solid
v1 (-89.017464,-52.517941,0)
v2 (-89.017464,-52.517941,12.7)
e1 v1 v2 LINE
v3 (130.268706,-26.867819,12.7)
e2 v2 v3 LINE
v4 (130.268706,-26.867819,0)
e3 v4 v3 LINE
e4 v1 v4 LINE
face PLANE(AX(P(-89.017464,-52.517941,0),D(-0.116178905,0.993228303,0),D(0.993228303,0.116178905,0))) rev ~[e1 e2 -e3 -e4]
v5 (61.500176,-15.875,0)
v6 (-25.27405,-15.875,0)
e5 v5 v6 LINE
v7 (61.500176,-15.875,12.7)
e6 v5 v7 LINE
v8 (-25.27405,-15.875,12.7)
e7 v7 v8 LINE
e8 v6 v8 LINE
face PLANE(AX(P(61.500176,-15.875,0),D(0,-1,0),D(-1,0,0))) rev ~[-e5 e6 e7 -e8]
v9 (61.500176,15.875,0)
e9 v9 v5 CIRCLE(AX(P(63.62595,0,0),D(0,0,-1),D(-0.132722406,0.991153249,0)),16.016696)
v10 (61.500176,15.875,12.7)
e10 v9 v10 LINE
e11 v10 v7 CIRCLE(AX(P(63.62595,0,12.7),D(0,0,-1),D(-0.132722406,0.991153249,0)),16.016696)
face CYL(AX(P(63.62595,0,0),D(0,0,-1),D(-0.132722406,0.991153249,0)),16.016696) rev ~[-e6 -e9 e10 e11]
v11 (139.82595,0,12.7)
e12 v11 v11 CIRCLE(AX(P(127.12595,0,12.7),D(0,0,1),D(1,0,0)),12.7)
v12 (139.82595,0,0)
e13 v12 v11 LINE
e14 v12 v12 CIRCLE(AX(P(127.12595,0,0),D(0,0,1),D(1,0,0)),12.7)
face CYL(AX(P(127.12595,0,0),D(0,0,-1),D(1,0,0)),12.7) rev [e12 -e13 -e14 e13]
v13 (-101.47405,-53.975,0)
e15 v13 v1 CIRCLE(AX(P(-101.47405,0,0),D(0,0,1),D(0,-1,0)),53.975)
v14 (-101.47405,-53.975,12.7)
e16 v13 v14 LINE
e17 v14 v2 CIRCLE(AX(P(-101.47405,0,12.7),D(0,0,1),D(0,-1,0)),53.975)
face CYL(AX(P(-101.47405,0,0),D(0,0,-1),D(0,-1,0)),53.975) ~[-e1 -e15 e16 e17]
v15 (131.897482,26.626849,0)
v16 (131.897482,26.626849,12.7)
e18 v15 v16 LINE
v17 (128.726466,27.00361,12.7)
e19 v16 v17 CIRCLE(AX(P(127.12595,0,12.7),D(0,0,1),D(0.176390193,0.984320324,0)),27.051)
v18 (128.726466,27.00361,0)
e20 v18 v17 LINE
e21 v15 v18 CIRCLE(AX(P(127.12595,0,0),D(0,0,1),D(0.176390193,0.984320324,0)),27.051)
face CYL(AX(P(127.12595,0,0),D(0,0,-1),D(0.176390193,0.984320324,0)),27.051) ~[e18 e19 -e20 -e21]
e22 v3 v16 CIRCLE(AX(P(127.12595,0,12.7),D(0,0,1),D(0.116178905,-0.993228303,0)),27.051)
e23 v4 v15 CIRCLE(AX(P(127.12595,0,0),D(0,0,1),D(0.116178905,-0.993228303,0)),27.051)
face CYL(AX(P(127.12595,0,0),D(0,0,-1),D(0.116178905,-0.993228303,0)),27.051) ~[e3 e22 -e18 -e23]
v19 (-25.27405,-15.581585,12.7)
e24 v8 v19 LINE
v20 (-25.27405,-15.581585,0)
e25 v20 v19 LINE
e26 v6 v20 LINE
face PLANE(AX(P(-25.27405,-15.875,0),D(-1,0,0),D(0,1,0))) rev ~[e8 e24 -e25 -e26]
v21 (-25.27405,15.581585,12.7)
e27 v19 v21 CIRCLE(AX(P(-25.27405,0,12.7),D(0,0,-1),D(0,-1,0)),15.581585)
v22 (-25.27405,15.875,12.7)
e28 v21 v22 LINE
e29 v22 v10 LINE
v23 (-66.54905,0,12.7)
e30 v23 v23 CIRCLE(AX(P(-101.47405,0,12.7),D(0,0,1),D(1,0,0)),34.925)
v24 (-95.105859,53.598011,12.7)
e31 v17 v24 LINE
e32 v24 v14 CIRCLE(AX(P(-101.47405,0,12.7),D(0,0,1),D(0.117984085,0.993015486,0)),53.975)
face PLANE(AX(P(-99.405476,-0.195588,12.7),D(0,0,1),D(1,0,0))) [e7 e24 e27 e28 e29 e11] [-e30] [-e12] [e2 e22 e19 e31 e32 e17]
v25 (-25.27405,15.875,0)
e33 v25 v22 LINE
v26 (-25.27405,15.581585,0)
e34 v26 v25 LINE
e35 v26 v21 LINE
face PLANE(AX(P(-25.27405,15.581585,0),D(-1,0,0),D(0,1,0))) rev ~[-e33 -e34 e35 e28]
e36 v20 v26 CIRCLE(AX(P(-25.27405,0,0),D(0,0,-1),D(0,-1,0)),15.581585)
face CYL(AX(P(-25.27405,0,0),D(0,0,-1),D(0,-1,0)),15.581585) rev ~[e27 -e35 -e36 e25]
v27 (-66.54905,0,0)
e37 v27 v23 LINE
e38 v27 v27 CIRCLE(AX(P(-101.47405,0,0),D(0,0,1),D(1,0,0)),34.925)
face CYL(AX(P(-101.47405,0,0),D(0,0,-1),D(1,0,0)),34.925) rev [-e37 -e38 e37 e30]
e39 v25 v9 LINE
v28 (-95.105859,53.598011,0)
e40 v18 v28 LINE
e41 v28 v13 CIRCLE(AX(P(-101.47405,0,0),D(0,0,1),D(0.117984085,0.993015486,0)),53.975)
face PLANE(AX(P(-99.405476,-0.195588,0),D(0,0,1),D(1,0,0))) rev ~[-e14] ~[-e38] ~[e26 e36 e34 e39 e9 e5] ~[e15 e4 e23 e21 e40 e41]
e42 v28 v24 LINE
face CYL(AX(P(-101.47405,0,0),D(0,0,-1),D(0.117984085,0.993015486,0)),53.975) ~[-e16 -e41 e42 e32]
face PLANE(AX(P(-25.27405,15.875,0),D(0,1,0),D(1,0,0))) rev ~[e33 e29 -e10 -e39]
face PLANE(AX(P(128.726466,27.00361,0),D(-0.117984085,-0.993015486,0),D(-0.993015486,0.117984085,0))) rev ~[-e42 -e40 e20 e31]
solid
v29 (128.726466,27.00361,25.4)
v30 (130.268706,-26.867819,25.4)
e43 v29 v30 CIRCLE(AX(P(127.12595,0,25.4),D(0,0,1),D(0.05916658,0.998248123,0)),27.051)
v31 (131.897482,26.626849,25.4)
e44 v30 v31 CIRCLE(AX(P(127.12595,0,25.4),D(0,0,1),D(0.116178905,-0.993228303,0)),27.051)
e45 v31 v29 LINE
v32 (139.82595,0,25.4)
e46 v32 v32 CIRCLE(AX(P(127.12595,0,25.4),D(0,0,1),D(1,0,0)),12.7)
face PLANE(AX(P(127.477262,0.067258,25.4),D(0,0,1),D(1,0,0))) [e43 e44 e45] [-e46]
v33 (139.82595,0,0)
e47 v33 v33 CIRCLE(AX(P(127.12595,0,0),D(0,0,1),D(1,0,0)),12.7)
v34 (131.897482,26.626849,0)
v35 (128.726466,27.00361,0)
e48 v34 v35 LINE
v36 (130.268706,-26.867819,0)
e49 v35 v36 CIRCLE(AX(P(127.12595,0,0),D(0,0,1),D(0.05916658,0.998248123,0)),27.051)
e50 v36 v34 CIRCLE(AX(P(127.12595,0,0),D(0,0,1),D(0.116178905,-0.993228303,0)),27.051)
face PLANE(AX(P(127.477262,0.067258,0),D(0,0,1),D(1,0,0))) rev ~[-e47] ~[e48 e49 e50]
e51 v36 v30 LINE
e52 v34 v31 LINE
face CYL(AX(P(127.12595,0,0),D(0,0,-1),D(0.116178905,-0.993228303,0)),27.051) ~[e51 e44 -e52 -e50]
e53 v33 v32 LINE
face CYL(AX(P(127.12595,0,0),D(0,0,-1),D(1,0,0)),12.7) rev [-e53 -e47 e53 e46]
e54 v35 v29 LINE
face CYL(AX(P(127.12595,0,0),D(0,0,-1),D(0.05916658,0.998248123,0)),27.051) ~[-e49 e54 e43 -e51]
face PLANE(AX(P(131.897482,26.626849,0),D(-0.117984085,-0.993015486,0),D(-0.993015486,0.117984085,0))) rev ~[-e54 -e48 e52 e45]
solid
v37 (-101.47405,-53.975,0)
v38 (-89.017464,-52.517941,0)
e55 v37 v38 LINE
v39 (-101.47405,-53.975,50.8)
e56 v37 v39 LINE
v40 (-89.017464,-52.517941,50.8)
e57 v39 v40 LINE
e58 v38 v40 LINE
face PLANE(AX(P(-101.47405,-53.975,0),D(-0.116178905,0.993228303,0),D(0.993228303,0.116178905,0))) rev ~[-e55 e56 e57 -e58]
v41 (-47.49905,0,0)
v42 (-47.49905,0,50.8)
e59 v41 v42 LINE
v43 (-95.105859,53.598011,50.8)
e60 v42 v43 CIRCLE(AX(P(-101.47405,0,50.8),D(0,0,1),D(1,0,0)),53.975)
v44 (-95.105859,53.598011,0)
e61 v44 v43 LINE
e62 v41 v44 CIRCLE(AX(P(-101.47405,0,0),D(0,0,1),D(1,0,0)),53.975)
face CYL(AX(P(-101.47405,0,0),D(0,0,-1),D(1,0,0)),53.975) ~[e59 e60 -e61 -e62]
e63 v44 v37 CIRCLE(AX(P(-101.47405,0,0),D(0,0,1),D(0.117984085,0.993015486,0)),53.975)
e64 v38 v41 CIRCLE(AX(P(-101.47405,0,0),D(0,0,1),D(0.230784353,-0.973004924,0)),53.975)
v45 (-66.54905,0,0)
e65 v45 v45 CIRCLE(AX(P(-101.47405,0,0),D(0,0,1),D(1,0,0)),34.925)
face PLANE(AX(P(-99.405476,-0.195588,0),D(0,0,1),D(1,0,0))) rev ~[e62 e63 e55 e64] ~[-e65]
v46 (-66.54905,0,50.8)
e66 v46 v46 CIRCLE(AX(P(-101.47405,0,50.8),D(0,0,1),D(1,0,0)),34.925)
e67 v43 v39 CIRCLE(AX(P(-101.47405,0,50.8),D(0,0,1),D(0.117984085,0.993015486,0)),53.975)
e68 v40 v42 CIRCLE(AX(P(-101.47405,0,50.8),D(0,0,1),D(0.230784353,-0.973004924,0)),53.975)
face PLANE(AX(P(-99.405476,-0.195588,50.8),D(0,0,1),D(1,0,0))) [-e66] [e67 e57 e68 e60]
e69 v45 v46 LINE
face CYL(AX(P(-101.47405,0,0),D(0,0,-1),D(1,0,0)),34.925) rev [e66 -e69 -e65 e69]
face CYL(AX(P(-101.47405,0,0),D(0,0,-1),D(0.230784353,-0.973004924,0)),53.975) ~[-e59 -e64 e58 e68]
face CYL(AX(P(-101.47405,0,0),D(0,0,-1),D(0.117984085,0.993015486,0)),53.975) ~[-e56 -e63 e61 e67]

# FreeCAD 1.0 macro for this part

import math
import FreeCAD as App
import Part
import Sketcher

V = App.Vector
Q = App.Units.Quantity

doc = App.newDocument("Part")
body = doc.addObject("PartDesign::Body", "Body")

sketch1 = body.newObject("Sketcher::SketchObject", "Sketch")
sketch1.AttachmentSupport = (doc.getObject("XY_Plane"), [""])
sketch1.MapMode = "FlatFace"
sketch1.addGeometry([
    Part.LineSegment(V(131.897482, 26.626849, 0), V(128.726466, 27.00361, 0)),
    Part.ArcOfCircle(Part.Circle(V(127.12595, 0, 0), V(0, 0, 1), 27.051), math.radians(86.608024), math.radians(276.671627)),
    Part.ArcOfCircle(Part.Circle(V(127.12595, 0, 0), V(0, 0, 1), 27.051), math.radians(-83.328373), math.radians(79.840431)),
    Part.Circle(V(127.12595, 0, 0), V(0, 0, 1), 12.7),
], False)
sketch1.addConstraint([
    Sketcher.Constraint("Coincident", 0, 2, 1, 1),
    Sketcher.Constraint("Tangent", 1, 2, 2, 1),
    Sketcher.Constraint("Coincident", 2, 2, 0, 1),
    Sketcher.Constraint("Coincident", 3, 3, 1, 3),
    Sketcher.Constraint("Equal", 1, 2),
    Sketcher.Constraint("PointOnObject", 1, 3, -1),
    Sketcher.Constraint("Diameter", 3, Q("1 in")),
    Sketcher.Constraint("Radius", 1, Q("1.065 in")),
    Sketcher.Constraint("Distance", 0, 3.19332),
    Sketcher.Constraint("DistanceX", -1, 1, 1, 3, 127.12595),
    Sketcher.Constraint("DistanceY", -1, 1, 0, 2, 27.00361),
    Sketcher.Constraint("DistanceY", 1, 2, -1, 1, 26.867819),
])
pad1 = body.newObject("PartDesign::Pad", "Pad")
pad1.Profile = sketch1
pad1.Length = Q("1 in")
body2 = doc.addObject("PartDesign::Body", "Body001")

sketch2 = body2.newObject("Sketcher::SketchObject", "Sketch001")
sketch2.AttachmentSupport = (doc.getObject("XY_Plane001"), [""])
sketch2.MapMode = "FlatFace"
sketch2.addGeometry([
    Part.ArcOfCircle(Part.Circle(V(-101.47405, 0, 0), V(0, 0, 1), 53.975), math.radians(-76.656746), math.radians(0)),
    Part.ArcOfCircle(Part.Circle(V(-101.47405, 0, 0), V(0, 0, 1), 53.975), math.radians(0), math.radians(83.224227)),
    Part.ArcOfCircle(Part.Circle(V(-101.47405, 0, 0), V(0, 0, 1), 53.975), math.radians(83.224227), math.radians(270)),
    Part.LineSegment(V(-101.47405, -53.975, 0), V(-89.017464, -52.517941, 0)),
    Part.Circle(V(-101.47405, 0, 0), V(0, 0, 1), 34.925),
], False)
sketch2.addConstraint([
    Sketcher.Constraint("Tangent", 0, 2, 1, 1),
    Sketcher.Constraint("Tangent", 1, 2, 2, 1),
    Sketcher.Constraint("Coincident", 2, 2, 3, 1),
    Sketcher.Constraint("Coincident", 3, 2, 0, 1),
    Sketcher.Constraint("Coincident", 2, 3, 0, 3),
    Sketcher.Constraint("Coincident", 4, 3, 0, 3),
    Sketcher.Constraint("PointOnObject", 0, 3, -1),
    Sketcher.Constraint("PointOnObject", 0, 2, -1),
    Sketcher.Constraint("Vertical", 4, 3, 2, 2),
    Sketcher.Constraint("Diameter", 4, Q("2.75 in")),
    Sketcher.Constraint("Radius", 0, Q("2.125 in")),
    Sketcher.Constraint("DistanceX", 0, 3, -1, 1, 101.47405),
    Sketcher.Constraint("DistanceX", 1, 2, -1, 1, 95.105859),
    Sketcher.Constraint("DistanceY", 3, 2, -1, 1, 52.517941),
])
pad2 = body2.newObject("PartDesign::Pad", "Pad001")
pad2.Profile = sketch2
pad2.Length = Q("2 in")
body3 = doc.addObject("PartDesign::Body", "Body002")

sketch3 = body3.newObject("Sketcher::SketchObject", "Sketch002")
sketch3.AttachmentSupport = (doc.getObject("XY_Plane002"), [""])
sketch3.MapMode = "FlatFace"
sketch3.addGeometry([
    Part.ArcOfCircle(Part.Circle(V(-101.47405, 0, 0), V(0, 0, 1), 53.975), math.radians(83.224227), math.radians(270)),
    Part.ArcOfCircle(Part.Circle(V(-101.47405, 0, 0), V(0, 0, 1), 53.975), math.radians(-90), math.radians(-76.656746)),
    Part.LineSegment(V(-89.017464, -52.517941, 0), V(130.268706, -26.867819, 0)),
    Part.ArcOfCircle(Part.Circle(V(127.12595, 0, 0), V(0, 0, 1), 27.051), math.radians(-83.328373), math.radians(79.840431)),
    Part.ArcOfCircle(Part.Circle(V(127.12595, 0, 0), V(0, 0, 1), 27.051), math.radians(79.840431), math.radians(86.608024)),
    Part.LineSegment(V(128.726466, 27.00361, 0), V(-95.105859, 53.598011, 0)),
    Part.Circle(V(-101.47405, 0, 0), V(0, 0, 1), 34.925),
    Part.LineSegment(V(-25.27405, 15.875, 0), V(61.500176, 15.875, 0)),
    Part.ArcOfCircle(Part.Circle(V(63.62595, 0, 0), V(0, 0, 1), 16.016696), math.radians(-97.626938), math.radians(97.626938)),
    Part.LineSegment(V(61.500176, -15.875, 0), V(-25.27405, -15.875, 0)),
    Part.LineSegment(V(-25.27405, -15.875, 0), V(-25.27405, -15.581585, 0)),
    Part.ArcOfCircle(Part.Circle(V(-25.27405, 0, 0), V(0, 0, 1), 15.581585), math.radians(90), math.radians(270)),
    Part.LineSegment(V(-25.27405, 15.581585, 0), V(-25.27405, 15.875, 0)),
    Part.Circle(V(127.12595, 0, 0), V(0, 0, 1), 12.7),
], False)
sketch3.addConstraint([
    Sketcher.Constraint("Tangent", 0, 2, 1, 1),
    Sketcher.Constraint("Coincident", 1, 2, 2, 1),
    Sketcher.Constraint("Tangent", 2, 2, 3, 1),
    Sketcher.Constraint("Tangent", 3, 2, 4, 1),
    Sketcher.Constraint("Coincident", 4, 2, 5, 1),
    Sketcher.Constraint("Tangent", 5, 2, 0, 1),
    Sketcher.Constraint("Coincident", 7, 2, 8, 2),
    Sketcher.Constraint("Coincident", 8, 1, 9, 1),
    Sketcher.Constraint("Coincident", 9, 2, 10, 1),
    Sketcher.Constraint("Coincident", 10, 2, 11, 2),
    Sketcher.Constraint("Coincident", 11, 1, 12, 1),
    Sketcher.Constraint("Coincident", 12, 2, 7, 1),
    Sketcher.Constraint("Horizontal", 7),
    Sketcher.Constraint("Horizontal", 9),
    Sketcher.Constraint("Vertical", 10),
    Sketcher.Constraint("Vertical", 12),
    Sketcher.Constraint("Coincident", 6, 3, 0, 3),
    Sketcher.Constraint("Coincident", 13, 3, 3, 3),
    Sketcher.Constraint("Equal", 0, 1),
    Sketcher.Constraint("Equal", 3, 4),
    Sketcher.Constraint("Symmetric", 7, 2, 8, 1, -1),
    Sketcher.Constraint("Symmetric", 10, 2, 11, 1, -1),
    Sketcher.Constraint("PointOnObject", 0, 3, -1),
    Sketcher.Constraint("PointOnObject", 3, 3, -1),
    Sketcher.Constraint("Vertical", 6, 3, 0, 2),
    Sketcher.Constraint("Vertical", 11, 3, 9, 2),
    Sketcher.Constraint("Diameter", 13, Q("1 in")),
    Sketcher.Constraint("Diameter", 6, Q("2.75 in")),
    Sketcher.Constraint("Radius", 0, Q("2.125 in")),
    Sketcher.Constraint("Radius", 3, Q("1.065 in")),
    Sketcher.Constraint("DistanceX", 0, 3, 3, 3, Q("9 in")),
    Sketcher.Constraint("DistanceX", 0, 3, 11, 3, Q("3 in")),
    Sketcher.Constraint("DistanceX", 8, 3, 3, 3, Q("2.5 in")),
    Sketcher.Constraint("DistanceY", 8, 1, 7, 2, Q("1.25 in")),
    Sketcher.Constraint("Radius", 8, 16.016696),
    Sketcher.Constraint("Radius", 11, 15.581585),
    Sketcher.Constraint("Distance", 5, 225.40668),
    Sketcher.Constraint("DistanceX", 0, 3, -1, 1, 101.47405),
    Sketcher.Constraint("DistanceY", 1, 2, -1, 1, 52.517941),
    Sketcher.Constraint("DistanceX", -1, 1, 3, 2, 131.897482),
])
pad3 = body3.newObject("PartDesign::Pad", "Pad002")
pad3.Profile = sketch3
pad3.Length = Q("0.5 in")

doc.recompute()
